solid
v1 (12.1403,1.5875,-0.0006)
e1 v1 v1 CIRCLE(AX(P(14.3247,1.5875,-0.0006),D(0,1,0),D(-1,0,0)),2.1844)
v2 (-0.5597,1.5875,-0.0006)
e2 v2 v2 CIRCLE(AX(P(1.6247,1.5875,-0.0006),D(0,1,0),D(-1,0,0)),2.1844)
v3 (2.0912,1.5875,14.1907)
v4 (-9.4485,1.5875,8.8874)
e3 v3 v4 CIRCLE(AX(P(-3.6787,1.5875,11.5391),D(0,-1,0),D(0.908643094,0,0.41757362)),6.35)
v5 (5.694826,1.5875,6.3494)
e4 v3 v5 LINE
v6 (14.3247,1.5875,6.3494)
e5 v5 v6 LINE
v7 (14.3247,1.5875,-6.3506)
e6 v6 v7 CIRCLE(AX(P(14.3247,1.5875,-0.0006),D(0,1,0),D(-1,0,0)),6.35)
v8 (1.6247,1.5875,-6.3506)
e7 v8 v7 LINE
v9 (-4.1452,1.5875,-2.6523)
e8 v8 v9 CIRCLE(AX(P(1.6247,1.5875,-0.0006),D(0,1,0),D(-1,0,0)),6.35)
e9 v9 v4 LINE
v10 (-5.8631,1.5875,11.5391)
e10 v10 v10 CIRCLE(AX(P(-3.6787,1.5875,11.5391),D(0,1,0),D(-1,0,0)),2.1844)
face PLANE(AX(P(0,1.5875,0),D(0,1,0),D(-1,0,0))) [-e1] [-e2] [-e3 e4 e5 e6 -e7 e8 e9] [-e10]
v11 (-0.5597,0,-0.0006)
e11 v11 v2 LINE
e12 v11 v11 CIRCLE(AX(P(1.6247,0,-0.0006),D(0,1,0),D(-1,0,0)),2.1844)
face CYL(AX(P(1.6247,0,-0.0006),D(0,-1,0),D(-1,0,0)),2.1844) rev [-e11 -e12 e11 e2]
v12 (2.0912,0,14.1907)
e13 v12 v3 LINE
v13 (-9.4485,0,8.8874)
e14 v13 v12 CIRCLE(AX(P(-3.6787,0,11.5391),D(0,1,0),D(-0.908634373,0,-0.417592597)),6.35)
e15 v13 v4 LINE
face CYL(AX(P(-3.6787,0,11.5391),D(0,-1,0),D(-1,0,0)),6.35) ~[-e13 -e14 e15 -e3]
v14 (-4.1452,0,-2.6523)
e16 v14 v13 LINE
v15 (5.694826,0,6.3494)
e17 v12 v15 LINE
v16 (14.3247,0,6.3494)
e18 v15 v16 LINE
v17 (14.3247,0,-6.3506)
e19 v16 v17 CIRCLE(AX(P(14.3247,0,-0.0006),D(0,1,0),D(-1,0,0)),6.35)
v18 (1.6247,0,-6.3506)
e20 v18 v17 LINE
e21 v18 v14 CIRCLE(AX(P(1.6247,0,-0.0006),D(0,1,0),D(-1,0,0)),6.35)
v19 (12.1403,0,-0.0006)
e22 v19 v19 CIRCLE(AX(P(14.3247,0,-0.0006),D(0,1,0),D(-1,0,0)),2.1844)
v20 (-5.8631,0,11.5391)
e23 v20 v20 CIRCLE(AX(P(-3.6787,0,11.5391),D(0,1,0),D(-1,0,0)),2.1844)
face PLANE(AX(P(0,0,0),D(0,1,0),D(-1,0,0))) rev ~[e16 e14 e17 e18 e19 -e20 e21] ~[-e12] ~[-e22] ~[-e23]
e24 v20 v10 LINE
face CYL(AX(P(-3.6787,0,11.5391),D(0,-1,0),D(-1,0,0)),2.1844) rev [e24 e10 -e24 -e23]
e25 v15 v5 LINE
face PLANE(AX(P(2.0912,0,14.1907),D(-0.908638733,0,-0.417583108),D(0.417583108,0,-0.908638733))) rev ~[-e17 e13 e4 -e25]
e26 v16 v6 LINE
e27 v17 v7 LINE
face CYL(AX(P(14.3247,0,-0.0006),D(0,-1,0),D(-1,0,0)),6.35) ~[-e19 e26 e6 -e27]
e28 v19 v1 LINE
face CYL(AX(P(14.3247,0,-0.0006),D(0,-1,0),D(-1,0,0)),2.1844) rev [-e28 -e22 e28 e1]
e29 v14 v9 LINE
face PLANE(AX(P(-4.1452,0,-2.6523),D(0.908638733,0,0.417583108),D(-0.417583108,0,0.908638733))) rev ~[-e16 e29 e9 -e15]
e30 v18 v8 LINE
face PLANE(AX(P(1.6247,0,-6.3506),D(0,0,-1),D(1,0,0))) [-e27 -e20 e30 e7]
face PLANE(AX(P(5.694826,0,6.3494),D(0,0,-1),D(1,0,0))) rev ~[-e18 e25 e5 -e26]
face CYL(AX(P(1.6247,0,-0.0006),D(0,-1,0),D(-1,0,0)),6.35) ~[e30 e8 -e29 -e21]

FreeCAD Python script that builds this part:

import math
import FreeCAD as App
import Part
import Sketcher
from FreeCAD import Vector
Q = App.Units.Quantity

doc = App.newDocument("Part")
body = doc.addObject("PartDesign::Body", "Body")

# Sketch on XZ plane
sketch1 = body.newObject("Sketcher::SketchObject", "Sketch")
sketch1.AttachmentSupport = (doc.getObject("XZ_Plane"), [""])
sketch1.MapMode = "FlatFace"
sketch1.addGeometry([
    Part.ArcOfCircle(Part.Circle(Vector(-3.7, 11.5, 0), Vector(0, 0, 1), 6.3), math.radians(25), math.radians(205)),  # 0
    Part.LineSegment(Vector(2.1, 14.2, 0), Vector(5.7, 6.3, 0)),  # 1
    Part.LineSegment(Vector(5.7, 6.3, 0), Vector(14.3, 6.3, 0)),  # 2
    Part.ArcOfCircle(Part.Circle(Vector(14.3, 0, 0), Vector(0, 0, 1), 6.3), math.radians(-90), math.radians(90)),  # 3
    Part.LineSegment(Vector(14.3, -6.4, 0), Vector(1.6, -6.4, 0)),  # 4
    Part.ArcOfCircle(Part.Circle(Vector(1.6, 0, 0), Vector(0, 0, 1), 6.3), math.radians(-155), math.radians(-90)),  # 5
    Part.LineSegment(Vector(-4.1, -2.7, 0), Vector(-9.4, 8.9, 0)),  # 6
    Part.Circle(Vector(-3.7, 11.5, 0), Vector(0, 0, 1), 2.2),  # 7
    Part.Circle(Vector(1.6, 0, 0), Vector(0, 0, 1), 2.2),  # 8
    Part.Circle(Vector(14.3, 0, 0), Vector(0, 0, 1), 2.2),  # 9
], False)
sketch1.addConstraint([
    Sketcher.Constraint("Tangent", 0, 1, 1, 1),
    Sketcher.Constraint("Coincident", 1, 2, 2, 1),
    Sketcher.Constraint("Tangent", 2, 2, 3, 2),
    Sketcher.Constraint("Tangent", 3, 1, 4, 1),
    Sketcher.Constraint("Tangent", 4, 2, 5, 2),
    Sketcher.Constraint("Tangent", 5, 1, 6, 1),
    Sketcher.Constraint("Tangent", 6, 2, 0, 2),
    Sketcher.Constraint("Horizontal", 2),
    Sketcher.Constraint("Horizontal", 4),
    Sketcher.Constraint("Coincident", 7, 3, 0, 3),
    Sketcher.Constraint("Coincident", 8, 3, 5, 3),
    Sketcher.Constraint("Coincident", 9, 3, 3, 3),
    Sketcher.Constraint("Equal", 0, 3),
    Sketcher.Constraint("Equal", 3, 5),
    Sketcher.Constraint("Equal", 7, 8),
    Sketcher.Constraint("Equal", 8, 9),
    Sketcher.Constraint("Parallel", 1, 6),
    Sketcher.Constraint("Radius", 0, Q("0.25 in")),
    Sketcher.Constraint("DistanceX", 4, 2, 4, 1, Q("0.5 in")),
    Sketcher.Constraint("Distance", 6, Q("0.5 in")),
    Sketcher.Constraint("Diameter", 7, Q("0.172 in")),
    Sketcher.Constraint("DistanceX", 6, 2, -1, 1, Q("0.372 in")),
    Sketcher.Constraint("DistanceX", 2, 1, 2, 2, 8.6299),
    Sketcher.Constraint("DistanceY", -1, 1, 0, 3, Q("0.4543 in")),
])
pad1 = body.newObject("PartDesign::Pad", "Pad")
pad1.Profile = sketch1
pad1.Length = Q("0.0625 in")
pad1.Reversed = True

doc.recompute()
